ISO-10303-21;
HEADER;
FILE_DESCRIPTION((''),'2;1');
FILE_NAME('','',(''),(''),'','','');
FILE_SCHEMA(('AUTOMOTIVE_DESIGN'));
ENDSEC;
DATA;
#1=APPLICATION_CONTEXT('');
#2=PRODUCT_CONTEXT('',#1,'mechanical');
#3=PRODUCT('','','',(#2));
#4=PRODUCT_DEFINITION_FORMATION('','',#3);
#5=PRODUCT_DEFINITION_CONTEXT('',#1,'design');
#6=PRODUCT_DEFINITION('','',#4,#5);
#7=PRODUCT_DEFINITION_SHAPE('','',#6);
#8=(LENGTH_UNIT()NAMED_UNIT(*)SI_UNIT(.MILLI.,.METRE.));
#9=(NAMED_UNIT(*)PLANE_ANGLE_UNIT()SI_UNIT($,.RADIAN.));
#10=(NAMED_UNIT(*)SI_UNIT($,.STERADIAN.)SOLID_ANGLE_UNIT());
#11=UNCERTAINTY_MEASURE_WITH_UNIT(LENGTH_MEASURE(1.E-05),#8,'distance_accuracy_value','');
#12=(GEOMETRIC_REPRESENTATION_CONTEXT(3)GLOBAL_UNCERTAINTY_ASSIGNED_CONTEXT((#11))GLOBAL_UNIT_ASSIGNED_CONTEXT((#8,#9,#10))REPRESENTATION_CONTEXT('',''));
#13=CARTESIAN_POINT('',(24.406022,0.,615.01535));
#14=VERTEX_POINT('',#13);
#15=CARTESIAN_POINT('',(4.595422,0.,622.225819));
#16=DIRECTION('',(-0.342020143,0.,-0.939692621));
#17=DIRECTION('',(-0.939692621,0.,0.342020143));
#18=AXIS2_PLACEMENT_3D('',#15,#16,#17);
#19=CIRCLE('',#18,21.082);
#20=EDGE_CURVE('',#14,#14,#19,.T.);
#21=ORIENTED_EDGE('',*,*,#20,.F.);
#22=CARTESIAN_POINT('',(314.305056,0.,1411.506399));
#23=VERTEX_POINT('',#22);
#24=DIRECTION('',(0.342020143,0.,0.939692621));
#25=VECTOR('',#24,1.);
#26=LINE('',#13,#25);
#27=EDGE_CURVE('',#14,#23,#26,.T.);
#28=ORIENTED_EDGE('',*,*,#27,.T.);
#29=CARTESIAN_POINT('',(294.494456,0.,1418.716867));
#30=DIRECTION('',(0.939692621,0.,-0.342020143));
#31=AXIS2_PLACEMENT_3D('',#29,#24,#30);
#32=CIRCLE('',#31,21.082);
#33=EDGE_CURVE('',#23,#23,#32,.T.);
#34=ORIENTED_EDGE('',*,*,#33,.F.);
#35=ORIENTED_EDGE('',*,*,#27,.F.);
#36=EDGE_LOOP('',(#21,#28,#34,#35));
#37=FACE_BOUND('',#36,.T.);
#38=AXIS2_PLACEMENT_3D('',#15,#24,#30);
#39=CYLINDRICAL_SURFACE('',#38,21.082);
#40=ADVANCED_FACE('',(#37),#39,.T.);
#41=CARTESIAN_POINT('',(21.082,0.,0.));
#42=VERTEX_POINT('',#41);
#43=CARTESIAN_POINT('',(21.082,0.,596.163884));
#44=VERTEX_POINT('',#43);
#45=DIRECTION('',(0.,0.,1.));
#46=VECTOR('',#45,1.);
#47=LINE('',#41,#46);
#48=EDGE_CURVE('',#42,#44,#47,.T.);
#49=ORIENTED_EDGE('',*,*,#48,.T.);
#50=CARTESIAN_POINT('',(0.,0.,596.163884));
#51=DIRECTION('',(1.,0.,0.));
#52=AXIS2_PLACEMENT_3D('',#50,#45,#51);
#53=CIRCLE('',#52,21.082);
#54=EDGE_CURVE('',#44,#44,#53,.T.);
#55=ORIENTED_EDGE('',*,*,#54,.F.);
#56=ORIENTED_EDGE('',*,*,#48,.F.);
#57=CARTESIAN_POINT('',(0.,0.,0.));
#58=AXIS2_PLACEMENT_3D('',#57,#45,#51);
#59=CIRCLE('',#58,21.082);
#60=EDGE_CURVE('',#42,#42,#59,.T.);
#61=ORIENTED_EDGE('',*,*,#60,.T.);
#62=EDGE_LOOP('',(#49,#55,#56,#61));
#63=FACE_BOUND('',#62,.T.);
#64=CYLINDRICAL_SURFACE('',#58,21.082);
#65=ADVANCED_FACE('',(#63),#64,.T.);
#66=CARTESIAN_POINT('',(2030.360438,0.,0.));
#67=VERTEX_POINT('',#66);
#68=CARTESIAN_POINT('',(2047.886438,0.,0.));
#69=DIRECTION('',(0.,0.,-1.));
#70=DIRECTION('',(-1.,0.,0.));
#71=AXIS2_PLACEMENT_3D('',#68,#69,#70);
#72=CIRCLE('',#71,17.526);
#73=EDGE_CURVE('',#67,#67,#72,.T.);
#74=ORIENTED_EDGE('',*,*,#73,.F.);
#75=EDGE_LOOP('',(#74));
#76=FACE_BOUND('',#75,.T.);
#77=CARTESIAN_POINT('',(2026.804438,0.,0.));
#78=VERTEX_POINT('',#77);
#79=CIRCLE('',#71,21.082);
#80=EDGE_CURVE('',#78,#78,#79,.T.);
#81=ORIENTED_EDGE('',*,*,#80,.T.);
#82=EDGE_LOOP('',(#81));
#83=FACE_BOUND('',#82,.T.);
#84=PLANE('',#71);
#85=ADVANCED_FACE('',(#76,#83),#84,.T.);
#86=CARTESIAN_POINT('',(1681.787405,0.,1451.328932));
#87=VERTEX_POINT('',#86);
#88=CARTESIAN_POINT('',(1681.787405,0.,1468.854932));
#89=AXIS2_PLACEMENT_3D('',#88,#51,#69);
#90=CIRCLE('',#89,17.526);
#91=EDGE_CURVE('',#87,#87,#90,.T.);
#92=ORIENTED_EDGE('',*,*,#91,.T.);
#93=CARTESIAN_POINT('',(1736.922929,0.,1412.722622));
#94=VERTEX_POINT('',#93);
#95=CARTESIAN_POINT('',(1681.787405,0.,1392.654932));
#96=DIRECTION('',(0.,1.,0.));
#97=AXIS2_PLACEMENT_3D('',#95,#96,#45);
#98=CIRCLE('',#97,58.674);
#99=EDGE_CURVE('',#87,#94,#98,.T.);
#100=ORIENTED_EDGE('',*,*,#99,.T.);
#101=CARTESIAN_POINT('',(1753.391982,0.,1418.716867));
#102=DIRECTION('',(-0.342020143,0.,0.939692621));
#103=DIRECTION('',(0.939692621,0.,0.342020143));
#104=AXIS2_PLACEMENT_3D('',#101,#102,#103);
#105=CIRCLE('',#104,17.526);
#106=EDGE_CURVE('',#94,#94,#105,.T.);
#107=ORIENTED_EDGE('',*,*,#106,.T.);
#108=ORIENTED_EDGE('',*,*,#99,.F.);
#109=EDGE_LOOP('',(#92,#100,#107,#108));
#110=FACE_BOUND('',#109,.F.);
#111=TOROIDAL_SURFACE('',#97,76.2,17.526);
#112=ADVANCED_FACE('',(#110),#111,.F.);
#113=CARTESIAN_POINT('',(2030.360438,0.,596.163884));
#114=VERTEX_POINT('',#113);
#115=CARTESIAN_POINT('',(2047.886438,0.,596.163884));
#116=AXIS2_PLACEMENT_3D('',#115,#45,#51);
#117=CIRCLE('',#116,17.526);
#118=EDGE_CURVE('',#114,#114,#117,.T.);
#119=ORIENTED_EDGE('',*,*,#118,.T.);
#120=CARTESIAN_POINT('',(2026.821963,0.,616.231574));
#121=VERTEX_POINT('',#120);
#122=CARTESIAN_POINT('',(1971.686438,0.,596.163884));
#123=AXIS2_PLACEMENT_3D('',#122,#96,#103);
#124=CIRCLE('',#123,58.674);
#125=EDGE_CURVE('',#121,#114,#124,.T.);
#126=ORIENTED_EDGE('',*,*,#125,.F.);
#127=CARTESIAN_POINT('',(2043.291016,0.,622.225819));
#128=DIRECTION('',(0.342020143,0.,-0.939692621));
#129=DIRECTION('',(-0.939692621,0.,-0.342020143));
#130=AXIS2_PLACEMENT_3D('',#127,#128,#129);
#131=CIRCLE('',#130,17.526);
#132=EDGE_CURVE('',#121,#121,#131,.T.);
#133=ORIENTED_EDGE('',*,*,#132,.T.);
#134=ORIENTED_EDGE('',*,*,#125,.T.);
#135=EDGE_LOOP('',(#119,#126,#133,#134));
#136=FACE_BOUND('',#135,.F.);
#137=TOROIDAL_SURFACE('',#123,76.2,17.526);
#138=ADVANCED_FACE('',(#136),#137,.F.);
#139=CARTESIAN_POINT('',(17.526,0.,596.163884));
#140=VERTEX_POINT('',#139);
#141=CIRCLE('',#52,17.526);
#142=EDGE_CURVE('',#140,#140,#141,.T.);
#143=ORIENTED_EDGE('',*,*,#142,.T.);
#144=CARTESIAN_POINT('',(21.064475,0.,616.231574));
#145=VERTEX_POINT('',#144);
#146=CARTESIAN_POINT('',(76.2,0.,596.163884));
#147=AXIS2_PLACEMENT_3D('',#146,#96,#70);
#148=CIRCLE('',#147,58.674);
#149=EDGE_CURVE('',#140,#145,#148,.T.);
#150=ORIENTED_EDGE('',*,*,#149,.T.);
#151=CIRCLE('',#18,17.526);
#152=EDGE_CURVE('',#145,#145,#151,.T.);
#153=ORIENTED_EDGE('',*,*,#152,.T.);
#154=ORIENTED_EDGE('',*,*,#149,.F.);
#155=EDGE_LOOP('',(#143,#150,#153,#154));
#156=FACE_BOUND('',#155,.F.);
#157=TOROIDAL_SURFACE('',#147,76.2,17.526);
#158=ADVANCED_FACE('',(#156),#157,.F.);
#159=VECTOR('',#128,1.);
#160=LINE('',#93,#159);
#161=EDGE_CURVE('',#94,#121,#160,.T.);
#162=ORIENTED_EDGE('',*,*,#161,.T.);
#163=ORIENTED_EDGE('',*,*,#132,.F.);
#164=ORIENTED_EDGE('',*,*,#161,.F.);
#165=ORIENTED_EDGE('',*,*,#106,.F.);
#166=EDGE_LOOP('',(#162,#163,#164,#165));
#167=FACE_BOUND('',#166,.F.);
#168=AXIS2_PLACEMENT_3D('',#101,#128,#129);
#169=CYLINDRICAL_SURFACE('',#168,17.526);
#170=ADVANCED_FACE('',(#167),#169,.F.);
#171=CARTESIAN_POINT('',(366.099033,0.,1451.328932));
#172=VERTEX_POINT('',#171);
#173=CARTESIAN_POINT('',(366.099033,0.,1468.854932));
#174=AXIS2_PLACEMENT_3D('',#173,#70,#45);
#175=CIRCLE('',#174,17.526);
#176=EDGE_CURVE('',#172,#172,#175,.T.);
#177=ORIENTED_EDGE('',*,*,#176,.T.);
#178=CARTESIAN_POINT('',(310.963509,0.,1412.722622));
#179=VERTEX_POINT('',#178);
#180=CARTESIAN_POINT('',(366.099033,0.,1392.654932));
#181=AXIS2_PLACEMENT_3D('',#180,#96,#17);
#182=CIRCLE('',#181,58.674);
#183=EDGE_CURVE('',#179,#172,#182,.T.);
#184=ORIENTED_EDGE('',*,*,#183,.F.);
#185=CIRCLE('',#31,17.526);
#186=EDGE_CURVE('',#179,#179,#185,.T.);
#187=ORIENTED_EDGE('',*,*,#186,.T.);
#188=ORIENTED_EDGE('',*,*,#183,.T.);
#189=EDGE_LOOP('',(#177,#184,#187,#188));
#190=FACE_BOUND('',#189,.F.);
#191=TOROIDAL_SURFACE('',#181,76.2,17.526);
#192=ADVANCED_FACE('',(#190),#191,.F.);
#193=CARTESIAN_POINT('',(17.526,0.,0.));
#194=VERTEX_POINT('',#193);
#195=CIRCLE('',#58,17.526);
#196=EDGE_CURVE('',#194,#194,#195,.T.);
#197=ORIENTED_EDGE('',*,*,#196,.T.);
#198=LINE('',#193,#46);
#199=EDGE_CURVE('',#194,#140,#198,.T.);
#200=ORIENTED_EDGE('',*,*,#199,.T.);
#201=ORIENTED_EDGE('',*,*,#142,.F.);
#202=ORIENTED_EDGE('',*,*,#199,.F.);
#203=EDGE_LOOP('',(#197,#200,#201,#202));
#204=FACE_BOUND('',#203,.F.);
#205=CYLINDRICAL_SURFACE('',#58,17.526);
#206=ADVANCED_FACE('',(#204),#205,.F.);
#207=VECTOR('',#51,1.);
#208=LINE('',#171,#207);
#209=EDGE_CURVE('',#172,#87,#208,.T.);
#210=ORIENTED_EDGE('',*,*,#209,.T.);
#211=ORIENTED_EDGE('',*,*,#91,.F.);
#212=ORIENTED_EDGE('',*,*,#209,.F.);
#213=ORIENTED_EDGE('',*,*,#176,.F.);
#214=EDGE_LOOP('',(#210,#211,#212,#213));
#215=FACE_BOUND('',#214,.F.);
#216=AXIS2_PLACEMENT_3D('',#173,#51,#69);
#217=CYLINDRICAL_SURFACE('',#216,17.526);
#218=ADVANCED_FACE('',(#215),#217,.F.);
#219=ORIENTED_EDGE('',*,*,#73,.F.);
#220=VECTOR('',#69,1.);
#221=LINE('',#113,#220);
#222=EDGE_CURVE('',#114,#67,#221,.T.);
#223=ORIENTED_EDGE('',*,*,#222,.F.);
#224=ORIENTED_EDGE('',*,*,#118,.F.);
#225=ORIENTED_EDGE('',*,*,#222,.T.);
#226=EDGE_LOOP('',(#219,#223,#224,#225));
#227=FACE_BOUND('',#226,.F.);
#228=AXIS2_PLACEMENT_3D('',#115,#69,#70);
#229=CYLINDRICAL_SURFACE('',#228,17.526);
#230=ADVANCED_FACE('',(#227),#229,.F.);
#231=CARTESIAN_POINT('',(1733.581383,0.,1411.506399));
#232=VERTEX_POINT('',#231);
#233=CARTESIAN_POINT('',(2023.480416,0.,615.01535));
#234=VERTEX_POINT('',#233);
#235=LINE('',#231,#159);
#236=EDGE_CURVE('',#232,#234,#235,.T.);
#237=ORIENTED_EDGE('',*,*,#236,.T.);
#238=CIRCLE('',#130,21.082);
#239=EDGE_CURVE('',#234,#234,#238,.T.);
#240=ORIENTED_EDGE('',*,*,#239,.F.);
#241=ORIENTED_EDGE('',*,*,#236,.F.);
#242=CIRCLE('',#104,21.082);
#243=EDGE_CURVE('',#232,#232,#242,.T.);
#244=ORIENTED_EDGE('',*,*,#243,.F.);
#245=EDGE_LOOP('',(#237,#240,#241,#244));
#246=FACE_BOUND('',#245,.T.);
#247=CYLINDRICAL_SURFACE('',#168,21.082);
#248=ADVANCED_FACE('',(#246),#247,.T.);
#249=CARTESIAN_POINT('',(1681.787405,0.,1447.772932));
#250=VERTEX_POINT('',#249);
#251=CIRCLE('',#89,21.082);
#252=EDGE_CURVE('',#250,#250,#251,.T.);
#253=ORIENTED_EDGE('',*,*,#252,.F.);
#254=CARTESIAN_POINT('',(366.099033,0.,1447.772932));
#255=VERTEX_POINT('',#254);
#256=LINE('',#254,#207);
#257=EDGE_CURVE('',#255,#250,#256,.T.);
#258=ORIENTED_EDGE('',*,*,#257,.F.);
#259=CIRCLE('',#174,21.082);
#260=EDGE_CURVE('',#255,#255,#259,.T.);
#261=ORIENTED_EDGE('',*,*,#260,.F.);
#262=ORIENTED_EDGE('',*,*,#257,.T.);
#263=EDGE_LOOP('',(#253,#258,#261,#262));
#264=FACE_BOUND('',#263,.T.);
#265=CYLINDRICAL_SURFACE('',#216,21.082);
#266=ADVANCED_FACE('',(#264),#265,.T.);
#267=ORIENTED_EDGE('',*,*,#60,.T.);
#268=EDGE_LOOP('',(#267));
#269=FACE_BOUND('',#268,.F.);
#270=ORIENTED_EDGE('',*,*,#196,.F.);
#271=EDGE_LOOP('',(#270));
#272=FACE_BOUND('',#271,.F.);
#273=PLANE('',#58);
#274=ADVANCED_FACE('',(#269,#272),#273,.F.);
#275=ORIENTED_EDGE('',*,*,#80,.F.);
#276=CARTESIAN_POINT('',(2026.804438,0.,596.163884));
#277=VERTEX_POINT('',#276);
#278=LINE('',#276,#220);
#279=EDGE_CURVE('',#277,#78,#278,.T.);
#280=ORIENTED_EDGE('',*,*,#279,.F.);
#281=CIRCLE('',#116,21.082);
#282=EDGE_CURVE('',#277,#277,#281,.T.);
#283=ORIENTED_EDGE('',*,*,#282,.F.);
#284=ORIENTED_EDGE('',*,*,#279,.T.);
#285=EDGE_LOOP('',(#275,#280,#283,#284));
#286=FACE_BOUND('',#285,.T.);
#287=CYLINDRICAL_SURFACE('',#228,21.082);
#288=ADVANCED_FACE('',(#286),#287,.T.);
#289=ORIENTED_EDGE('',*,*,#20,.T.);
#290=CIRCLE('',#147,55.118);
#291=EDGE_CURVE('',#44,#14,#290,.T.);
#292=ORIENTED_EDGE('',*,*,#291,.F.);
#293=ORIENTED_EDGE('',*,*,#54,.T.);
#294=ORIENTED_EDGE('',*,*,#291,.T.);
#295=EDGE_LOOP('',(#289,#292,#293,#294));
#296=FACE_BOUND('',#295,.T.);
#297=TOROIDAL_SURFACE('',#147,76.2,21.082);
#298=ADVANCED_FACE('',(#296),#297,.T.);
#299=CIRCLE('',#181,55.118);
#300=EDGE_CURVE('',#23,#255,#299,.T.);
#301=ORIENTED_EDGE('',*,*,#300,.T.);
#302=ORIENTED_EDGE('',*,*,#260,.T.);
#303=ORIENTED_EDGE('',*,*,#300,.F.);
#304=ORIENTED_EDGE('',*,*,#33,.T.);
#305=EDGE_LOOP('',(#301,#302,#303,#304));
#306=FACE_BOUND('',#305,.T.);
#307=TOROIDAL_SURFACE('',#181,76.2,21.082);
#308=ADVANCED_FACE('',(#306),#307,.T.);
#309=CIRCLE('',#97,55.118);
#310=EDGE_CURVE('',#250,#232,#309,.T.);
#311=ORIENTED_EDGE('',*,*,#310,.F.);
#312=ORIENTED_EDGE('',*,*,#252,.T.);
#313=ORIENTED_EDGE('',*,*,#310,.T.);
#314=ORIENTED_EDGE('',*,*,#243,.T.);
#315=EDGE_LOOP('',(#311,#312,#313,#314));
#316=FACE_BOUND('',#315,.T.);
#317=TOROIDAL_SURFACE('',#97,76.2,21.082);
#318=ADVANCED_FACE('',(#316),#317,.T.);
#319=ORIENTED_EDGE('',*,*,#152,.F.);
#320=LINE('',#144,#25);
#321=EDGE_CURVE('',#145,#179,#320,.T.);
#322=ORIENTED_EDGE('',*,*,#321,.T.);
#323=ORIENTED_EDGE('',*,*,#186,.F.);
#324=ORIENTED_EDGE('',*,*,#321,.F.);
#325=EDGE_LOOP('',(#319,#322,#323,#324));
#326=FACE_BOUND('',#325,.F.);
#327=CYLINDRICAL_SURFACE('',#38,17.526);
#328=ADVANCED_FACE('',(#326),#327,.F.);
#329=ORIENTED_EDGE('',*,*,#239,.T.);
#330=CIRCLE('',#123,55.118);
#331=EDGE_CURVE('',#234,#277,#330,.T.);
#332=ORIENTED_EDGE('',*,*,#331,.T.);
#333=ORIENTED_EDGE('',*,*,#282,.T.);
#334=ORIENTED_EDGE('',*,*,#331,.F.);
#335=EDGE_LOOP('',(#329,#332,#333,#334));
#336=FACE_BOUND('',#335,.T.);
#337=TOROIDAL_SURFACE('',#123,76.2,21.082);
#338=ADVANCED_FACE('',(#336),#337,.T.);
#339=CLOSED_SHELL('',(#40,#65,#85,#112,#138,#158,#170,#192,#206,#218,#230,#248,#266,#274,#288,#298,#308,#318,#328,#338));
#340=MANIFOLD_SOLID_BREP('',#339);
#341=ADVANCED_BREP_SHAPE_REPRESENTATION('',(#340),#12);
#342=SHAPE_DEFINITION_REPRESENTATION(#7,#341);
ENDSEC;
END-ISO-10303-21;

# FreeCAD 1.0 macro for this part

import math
import FreeCAD as App
import Part
import Sketcher

V = App.Vector
Q = App.Units.Quantity

doc = App.newDocument("Part")
body = doc.addObject("PartDesign::Body", "Body")

# Sketch on XY plane
sketch1 = doc.addObject("Sketcher::SketchObject", "Sketch")
body.addObject(sketch1)
sketch1.AttachmentSupport = (doc.XY_Plane, [""])
sketch1.MapMode = "FlatFace"
sketch1.addGeometry(Part.Circle(V(0, 0, 0), V(0, 0, 1), 21), False)
sketch1.addGeometry(Part.Circle(V(0, 0, 0), V(0, 0, 1), 18), False)
sketch1.addConstraint(Sketcher.Constraint("Coincident", 0, 3, -1, 1))
sketch1.addConstraint(Sketcher.Constraint("Coincident", 1, 3, -1, 1))
sketch1.addConstraint(Sketcher.Constraint("Diameter", 0, Q("1.66 in")))
sketch1.addConstraint(Sketcher.Constraint("Diameter", 1, Q("1.38 in")))

# Sketch on XZ plane
sketch2 = doc.addObject("Sketcher::SketchObject", "Sketch001")
body.addObject(sketch2)
sketch2.AttachmentSupport = (doc.XZ_Plane, [""])
sketch2.MapMode = "FlatFace"
sketch2.addGeometry(Part.LineSegment(V(0, 0, 0), V(0, 596, 0)), False)
sketch2.addGeometry(Part.ArcOfCircle(Part.Circle(V(76, 596, 0), V(0, 0, 1), 76), math.radians(160), math.radians(180)), False)
sketch2.addGeometry(Part.LineSegment(V(5, 622, 0), V(294, 1419, 0)), False)
sketch2.addGeometry(Part.ArcOfCircle(Part.Circle(V(366, 1393, 0), V(0, 0, 1), 76), math.radians(90), math.radians(160)), False)
sketch2.addGeometry(Part.LineSegment(V(366, 1469, 0), V(1682, 1469, 0)), False)
sketch2.addGeometry(Part.ArcOfCircle(Part.Circle(V(1682, 1393, 0), V(0, 0, 1), 76), math.radians(20), math.radians(90)), False)
sketch2.addGeometry(Part.LineSegment(V(1753, 1419, 0), V(2043, 622, 0)), False)
sketch2.addGeometry(Part.ArcOfCircle(Part.Circle(V(1972, 596, 0), V(0, 0, 1), 76), math.radians(0), math.radians(20)), False)
sketch2.addGeometry(Part.LineSegment(V(2048, 596, 0), V(2048, 0, 0)), False)
sketch2.addConstraint(Sketcher.Constraint("Tangent", 0, 2, 1, 2))
sketch2.addConstraint(Sketcher.Constraint("Tangent", 1, 1, 2, 1))
sketch2.addConstraint(Sketcher.Constraint("Tangent", 2, 2, 3, 2))
sketch2.addConstraint(Sketcher.Constraint("Tangent", 3, 1, 4, 1))
sketch2.addConstraint(Sketcher.Constraint("Tangent", 4, 2, 5, 2))
sketch2.addConstraint(Sketcher.Constraint("Tangent", 5, 1, 6, 1))
sketch2.addConstraint(Sketcher.Constraint("Tangent", 6, 2, 7, 2))
sketch2.addConstraint(Sketcher.Constraint("Tangent", 7, 1, 8, 1))
sketch2.addConstraint(Sketcher.Constraint("Vertical", 0))
sketch2.addConstraint(Sketcher.Constraint("Horizontal", 4))
sketch2.addConstraint(Sketcher.Constraint("Vertical", 8))
sketch2.addConstraint(Sketcher.Constraint("Coincident", 0, 1, -1, 1))
sketch2.addConstraint(Sketcher.Constraint("Equal", 1, 3))
sketch2.addConstraint(Sketcher.Constraint("Equal", 3, 5))
sketch2.addConstraint(Sketcher.Constraint("Equal", 5, 7))
sketch2.addConstraint(Sketcher.Constraint("PointOnObject", 8, 2, -1))
sketch2.addConstraint(Sketcher.Constraint("Horizontal", 1, 3, 7, 3))
sketch2.addConstraint(Sketcher.Constraint("Equal", 2, 6))
sketch2.addConstraint(Sketcher.Constraint("Radius", 1, Q("3 in")))
sketch2.addConstraint(Sketcher.Constraint("Angle", 2, Q("70 deg")))
sketch2.addConstraint(Sketcher.Constraint("DistanceX", 4, 1, 4, 2, Q("1315.688371 mm")))
sketch2.addConstraint(Sketcher.Constraint("Distance", 2, Q("847.60807 mm")))
sketch2.addConstraint(Sketcher.Constraint("DistanceY", 0, 1, 0, 2, Q("596.163884 mm")))
doc.recompute()

additivepipe = doc.addObject("PartDesign::AdditivePipe", "AdditivePipe")
body.addObject(additivepipe)
additivepipe.Profile = sketch1
additivepipe.Spine = (sketch2, ["Edge1", "Edge2", "Edge3", "Edge4", "Edge5", "Edge6", "Edge7", "Edge8", "Edge9"])

doc.recompute()
